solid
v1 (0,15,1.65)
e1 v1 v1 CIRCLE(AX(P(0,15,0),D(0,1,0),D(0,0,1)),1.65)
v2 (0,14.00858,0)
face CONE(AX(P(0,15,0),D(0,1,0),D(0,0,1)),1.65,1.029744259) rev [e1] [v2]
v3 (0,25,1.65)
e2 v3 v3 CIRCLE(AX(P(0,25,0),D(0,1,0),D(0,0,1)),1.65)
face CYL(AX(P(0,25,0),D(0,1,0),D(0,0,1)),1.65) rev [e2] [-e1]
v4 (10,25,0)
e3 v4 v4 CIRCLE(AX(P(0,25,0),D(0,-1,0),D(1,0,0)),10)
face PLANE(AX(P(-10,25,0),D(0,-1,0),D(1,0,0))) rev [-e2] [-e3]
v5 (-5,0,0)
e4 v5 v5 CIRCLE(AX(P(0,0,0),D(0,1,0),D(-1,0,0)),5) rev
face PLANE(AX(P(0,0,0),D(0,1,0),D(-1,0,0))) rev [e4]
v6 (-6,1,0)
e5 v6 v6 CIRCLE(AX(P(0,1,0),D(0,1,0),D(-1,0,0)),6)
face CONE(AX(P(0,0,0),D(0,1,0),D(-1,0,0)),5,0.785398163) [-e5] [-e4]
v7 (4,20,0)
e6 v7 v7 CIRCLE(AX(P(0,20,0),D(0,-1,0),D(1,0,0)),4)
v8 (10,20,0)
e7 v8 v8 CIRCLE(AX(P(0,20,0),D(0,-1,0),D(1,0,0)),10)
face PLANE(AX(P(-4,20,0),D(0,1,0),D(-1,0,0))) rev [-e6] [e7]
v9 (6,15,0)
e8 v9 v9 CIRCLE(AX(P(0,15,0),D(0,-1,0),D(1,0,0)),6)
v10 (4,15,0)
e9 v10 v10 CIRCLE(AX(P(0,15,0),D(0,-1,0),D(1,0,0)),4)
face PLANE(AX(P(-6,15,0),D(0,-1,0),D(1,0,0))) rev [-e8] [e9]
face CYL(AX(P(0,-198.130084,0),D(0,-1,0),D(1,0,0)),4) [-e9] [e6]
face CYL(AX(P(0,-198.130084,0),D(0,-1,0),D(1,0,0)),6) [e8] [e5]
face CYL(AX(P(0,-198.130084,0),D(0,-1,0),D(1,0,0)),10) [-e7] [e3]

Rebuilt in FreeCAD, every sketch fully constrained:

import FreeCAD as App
import Part
import Sketcher
from FreeCAD import Vector
Q = App.Units.Quantity


def edges_at(feature, points):
    """Names of the edges that pass closest to the given points."""
    edges = feature.Shape.Edges
    near = lambda p: min(range(len(edges)), key=lambda i: edges[i].distToShape(Part.Vertex(*p))[0])
    return sorted({f"Edge{near(p) + 1}" for p in points})


def add_polygon(sketch, points):
    """Adds a closed chain of lines whose ends are joined by coincident constraints."""
    first, n = sketch.GeometryCount, len(points)
    for a, b in zip(points, points[1:] + points[:1]):
        sketch.addGeometry(Part.LineSegment(App.Vector(*a, 0), App.Vector(*b, 0)), False)
    for i in range(n):
        sketch.addConstraint(Sketcher.Constraint("Coincident", first + i, 2, first + (i + 1) % n, 1))

doc = App.newDocument("Part")
body = doc.addObject("PartDesign::Body", "Body")

# Sketch on XY plane
sketch1 = body.newObject("Sketcher::SketchObject", "Sketch")
sketch1.AttachmentSupport = (doc.getObject("XY_Plane"), [""])
sketch1.MapMode = "FlatFace"
add_polygon(sketch1, [(-6, 0), (0, 0), (0, 25), (-10, 25), (-10, 20), (-4, 20), (-4, 15), (-6, 15)])  # lines 0-7
sketch1.addConstraint(Sketcher.Constraint("Horizontal", 0))
sketch1.addConstraint(Sketcher.Constraint("Vertical", 1))
sketch1.addConstraint(Sketcher.Constraint("Horizontal", 2))
sketch1.addConstraint(Sketcher.Constraint("Vertical", 3))
sketch1.addConstraint(Sketcher.Constraint("Horizontal", 4))
sketch1.addConstraint(Sketcher.Constraint("Vertical", 5))
sketch1.addConstraint(Sketcher.Constraint("Horizontal", 6))
sketch1.addConstraint(Sketcher.Constraint("Vertical", 7))
sketch1.addConstraint(Sketcher.Constraint("Coincident", 0, 2, -1, 1))
sketch1.addConstraint(Sketcher.Constraint("Equal", 0, 4))
sketch1.addConstraint(Sketcher.Constraint("Equal", 3, 5))
sketch1.addConstraint(Sketcher.Constraint("DistanceX", 0, 1, 0, 2, Q("6 mm")))
sketch1.addConstraint(Sketcher.Constraint("DistanceX", 2, 2, 2, 1, Q("10 mm")))
sketch1.addConstraint(Sketcher.Constraint("DistanceY", 1, 1, 1, 2, Q("25 mm")))
sketch1.addConstraint(Sketcher.Constraint("DistanceY", 3, 2, 3, 1, Q("5 mm")))
revolution = body.newObject("PartDesign::Revolution", "Revolution")
revolution.Profile = sketch1
revolution.ReferenceAxis = (sketch1, ["V_Axis"])
revolution.Angle = 360
doc.recompute()

chamfer = body.newObject("PartDesign::Chamfer", "Chamfer")
chamfer.Base = (revolution, edges_at(revolution, [(-6, 0, 0)]))
chamfer.Size = 1

# Sketch on XZ plane
sketch2 = body.newObject("Sketcher::SketchObject", "Sketch001")
sketch2.AttachmentSupport = (doc.getObject("XZ_Plane"), [""])
sketch2.MapMode = "FlatFace"
sketch2.AttachmentOffset = App.Placement(Vector(0, 0, -25), App.Rotation())
sketch2.addGeometry(Part.Circle(Vector(0, 0, 0), Vector(0, 0, 1), 1.65), False)
sketch2.addConstraint(Sketcher.Constraint("Coincident", 0, 3, -1, 1))
sketch2.addConstraint(Sketcher.Constraint("Diameter", 0, Q("3.3 mm")))
doc.recompute()
hole = body.newObject("PartDesign::Hole", "Hole")
hole.Profile = sketch2
hole.ThreadType = "None"
hole.Diameter = 3.3
hole.DepthType = "Dimension"
hole.Depth = 10
hole.DrillPoint = "Angled"
hole.DrillPointAngle = 118
hole.Reversed = True

doc.recompute()
